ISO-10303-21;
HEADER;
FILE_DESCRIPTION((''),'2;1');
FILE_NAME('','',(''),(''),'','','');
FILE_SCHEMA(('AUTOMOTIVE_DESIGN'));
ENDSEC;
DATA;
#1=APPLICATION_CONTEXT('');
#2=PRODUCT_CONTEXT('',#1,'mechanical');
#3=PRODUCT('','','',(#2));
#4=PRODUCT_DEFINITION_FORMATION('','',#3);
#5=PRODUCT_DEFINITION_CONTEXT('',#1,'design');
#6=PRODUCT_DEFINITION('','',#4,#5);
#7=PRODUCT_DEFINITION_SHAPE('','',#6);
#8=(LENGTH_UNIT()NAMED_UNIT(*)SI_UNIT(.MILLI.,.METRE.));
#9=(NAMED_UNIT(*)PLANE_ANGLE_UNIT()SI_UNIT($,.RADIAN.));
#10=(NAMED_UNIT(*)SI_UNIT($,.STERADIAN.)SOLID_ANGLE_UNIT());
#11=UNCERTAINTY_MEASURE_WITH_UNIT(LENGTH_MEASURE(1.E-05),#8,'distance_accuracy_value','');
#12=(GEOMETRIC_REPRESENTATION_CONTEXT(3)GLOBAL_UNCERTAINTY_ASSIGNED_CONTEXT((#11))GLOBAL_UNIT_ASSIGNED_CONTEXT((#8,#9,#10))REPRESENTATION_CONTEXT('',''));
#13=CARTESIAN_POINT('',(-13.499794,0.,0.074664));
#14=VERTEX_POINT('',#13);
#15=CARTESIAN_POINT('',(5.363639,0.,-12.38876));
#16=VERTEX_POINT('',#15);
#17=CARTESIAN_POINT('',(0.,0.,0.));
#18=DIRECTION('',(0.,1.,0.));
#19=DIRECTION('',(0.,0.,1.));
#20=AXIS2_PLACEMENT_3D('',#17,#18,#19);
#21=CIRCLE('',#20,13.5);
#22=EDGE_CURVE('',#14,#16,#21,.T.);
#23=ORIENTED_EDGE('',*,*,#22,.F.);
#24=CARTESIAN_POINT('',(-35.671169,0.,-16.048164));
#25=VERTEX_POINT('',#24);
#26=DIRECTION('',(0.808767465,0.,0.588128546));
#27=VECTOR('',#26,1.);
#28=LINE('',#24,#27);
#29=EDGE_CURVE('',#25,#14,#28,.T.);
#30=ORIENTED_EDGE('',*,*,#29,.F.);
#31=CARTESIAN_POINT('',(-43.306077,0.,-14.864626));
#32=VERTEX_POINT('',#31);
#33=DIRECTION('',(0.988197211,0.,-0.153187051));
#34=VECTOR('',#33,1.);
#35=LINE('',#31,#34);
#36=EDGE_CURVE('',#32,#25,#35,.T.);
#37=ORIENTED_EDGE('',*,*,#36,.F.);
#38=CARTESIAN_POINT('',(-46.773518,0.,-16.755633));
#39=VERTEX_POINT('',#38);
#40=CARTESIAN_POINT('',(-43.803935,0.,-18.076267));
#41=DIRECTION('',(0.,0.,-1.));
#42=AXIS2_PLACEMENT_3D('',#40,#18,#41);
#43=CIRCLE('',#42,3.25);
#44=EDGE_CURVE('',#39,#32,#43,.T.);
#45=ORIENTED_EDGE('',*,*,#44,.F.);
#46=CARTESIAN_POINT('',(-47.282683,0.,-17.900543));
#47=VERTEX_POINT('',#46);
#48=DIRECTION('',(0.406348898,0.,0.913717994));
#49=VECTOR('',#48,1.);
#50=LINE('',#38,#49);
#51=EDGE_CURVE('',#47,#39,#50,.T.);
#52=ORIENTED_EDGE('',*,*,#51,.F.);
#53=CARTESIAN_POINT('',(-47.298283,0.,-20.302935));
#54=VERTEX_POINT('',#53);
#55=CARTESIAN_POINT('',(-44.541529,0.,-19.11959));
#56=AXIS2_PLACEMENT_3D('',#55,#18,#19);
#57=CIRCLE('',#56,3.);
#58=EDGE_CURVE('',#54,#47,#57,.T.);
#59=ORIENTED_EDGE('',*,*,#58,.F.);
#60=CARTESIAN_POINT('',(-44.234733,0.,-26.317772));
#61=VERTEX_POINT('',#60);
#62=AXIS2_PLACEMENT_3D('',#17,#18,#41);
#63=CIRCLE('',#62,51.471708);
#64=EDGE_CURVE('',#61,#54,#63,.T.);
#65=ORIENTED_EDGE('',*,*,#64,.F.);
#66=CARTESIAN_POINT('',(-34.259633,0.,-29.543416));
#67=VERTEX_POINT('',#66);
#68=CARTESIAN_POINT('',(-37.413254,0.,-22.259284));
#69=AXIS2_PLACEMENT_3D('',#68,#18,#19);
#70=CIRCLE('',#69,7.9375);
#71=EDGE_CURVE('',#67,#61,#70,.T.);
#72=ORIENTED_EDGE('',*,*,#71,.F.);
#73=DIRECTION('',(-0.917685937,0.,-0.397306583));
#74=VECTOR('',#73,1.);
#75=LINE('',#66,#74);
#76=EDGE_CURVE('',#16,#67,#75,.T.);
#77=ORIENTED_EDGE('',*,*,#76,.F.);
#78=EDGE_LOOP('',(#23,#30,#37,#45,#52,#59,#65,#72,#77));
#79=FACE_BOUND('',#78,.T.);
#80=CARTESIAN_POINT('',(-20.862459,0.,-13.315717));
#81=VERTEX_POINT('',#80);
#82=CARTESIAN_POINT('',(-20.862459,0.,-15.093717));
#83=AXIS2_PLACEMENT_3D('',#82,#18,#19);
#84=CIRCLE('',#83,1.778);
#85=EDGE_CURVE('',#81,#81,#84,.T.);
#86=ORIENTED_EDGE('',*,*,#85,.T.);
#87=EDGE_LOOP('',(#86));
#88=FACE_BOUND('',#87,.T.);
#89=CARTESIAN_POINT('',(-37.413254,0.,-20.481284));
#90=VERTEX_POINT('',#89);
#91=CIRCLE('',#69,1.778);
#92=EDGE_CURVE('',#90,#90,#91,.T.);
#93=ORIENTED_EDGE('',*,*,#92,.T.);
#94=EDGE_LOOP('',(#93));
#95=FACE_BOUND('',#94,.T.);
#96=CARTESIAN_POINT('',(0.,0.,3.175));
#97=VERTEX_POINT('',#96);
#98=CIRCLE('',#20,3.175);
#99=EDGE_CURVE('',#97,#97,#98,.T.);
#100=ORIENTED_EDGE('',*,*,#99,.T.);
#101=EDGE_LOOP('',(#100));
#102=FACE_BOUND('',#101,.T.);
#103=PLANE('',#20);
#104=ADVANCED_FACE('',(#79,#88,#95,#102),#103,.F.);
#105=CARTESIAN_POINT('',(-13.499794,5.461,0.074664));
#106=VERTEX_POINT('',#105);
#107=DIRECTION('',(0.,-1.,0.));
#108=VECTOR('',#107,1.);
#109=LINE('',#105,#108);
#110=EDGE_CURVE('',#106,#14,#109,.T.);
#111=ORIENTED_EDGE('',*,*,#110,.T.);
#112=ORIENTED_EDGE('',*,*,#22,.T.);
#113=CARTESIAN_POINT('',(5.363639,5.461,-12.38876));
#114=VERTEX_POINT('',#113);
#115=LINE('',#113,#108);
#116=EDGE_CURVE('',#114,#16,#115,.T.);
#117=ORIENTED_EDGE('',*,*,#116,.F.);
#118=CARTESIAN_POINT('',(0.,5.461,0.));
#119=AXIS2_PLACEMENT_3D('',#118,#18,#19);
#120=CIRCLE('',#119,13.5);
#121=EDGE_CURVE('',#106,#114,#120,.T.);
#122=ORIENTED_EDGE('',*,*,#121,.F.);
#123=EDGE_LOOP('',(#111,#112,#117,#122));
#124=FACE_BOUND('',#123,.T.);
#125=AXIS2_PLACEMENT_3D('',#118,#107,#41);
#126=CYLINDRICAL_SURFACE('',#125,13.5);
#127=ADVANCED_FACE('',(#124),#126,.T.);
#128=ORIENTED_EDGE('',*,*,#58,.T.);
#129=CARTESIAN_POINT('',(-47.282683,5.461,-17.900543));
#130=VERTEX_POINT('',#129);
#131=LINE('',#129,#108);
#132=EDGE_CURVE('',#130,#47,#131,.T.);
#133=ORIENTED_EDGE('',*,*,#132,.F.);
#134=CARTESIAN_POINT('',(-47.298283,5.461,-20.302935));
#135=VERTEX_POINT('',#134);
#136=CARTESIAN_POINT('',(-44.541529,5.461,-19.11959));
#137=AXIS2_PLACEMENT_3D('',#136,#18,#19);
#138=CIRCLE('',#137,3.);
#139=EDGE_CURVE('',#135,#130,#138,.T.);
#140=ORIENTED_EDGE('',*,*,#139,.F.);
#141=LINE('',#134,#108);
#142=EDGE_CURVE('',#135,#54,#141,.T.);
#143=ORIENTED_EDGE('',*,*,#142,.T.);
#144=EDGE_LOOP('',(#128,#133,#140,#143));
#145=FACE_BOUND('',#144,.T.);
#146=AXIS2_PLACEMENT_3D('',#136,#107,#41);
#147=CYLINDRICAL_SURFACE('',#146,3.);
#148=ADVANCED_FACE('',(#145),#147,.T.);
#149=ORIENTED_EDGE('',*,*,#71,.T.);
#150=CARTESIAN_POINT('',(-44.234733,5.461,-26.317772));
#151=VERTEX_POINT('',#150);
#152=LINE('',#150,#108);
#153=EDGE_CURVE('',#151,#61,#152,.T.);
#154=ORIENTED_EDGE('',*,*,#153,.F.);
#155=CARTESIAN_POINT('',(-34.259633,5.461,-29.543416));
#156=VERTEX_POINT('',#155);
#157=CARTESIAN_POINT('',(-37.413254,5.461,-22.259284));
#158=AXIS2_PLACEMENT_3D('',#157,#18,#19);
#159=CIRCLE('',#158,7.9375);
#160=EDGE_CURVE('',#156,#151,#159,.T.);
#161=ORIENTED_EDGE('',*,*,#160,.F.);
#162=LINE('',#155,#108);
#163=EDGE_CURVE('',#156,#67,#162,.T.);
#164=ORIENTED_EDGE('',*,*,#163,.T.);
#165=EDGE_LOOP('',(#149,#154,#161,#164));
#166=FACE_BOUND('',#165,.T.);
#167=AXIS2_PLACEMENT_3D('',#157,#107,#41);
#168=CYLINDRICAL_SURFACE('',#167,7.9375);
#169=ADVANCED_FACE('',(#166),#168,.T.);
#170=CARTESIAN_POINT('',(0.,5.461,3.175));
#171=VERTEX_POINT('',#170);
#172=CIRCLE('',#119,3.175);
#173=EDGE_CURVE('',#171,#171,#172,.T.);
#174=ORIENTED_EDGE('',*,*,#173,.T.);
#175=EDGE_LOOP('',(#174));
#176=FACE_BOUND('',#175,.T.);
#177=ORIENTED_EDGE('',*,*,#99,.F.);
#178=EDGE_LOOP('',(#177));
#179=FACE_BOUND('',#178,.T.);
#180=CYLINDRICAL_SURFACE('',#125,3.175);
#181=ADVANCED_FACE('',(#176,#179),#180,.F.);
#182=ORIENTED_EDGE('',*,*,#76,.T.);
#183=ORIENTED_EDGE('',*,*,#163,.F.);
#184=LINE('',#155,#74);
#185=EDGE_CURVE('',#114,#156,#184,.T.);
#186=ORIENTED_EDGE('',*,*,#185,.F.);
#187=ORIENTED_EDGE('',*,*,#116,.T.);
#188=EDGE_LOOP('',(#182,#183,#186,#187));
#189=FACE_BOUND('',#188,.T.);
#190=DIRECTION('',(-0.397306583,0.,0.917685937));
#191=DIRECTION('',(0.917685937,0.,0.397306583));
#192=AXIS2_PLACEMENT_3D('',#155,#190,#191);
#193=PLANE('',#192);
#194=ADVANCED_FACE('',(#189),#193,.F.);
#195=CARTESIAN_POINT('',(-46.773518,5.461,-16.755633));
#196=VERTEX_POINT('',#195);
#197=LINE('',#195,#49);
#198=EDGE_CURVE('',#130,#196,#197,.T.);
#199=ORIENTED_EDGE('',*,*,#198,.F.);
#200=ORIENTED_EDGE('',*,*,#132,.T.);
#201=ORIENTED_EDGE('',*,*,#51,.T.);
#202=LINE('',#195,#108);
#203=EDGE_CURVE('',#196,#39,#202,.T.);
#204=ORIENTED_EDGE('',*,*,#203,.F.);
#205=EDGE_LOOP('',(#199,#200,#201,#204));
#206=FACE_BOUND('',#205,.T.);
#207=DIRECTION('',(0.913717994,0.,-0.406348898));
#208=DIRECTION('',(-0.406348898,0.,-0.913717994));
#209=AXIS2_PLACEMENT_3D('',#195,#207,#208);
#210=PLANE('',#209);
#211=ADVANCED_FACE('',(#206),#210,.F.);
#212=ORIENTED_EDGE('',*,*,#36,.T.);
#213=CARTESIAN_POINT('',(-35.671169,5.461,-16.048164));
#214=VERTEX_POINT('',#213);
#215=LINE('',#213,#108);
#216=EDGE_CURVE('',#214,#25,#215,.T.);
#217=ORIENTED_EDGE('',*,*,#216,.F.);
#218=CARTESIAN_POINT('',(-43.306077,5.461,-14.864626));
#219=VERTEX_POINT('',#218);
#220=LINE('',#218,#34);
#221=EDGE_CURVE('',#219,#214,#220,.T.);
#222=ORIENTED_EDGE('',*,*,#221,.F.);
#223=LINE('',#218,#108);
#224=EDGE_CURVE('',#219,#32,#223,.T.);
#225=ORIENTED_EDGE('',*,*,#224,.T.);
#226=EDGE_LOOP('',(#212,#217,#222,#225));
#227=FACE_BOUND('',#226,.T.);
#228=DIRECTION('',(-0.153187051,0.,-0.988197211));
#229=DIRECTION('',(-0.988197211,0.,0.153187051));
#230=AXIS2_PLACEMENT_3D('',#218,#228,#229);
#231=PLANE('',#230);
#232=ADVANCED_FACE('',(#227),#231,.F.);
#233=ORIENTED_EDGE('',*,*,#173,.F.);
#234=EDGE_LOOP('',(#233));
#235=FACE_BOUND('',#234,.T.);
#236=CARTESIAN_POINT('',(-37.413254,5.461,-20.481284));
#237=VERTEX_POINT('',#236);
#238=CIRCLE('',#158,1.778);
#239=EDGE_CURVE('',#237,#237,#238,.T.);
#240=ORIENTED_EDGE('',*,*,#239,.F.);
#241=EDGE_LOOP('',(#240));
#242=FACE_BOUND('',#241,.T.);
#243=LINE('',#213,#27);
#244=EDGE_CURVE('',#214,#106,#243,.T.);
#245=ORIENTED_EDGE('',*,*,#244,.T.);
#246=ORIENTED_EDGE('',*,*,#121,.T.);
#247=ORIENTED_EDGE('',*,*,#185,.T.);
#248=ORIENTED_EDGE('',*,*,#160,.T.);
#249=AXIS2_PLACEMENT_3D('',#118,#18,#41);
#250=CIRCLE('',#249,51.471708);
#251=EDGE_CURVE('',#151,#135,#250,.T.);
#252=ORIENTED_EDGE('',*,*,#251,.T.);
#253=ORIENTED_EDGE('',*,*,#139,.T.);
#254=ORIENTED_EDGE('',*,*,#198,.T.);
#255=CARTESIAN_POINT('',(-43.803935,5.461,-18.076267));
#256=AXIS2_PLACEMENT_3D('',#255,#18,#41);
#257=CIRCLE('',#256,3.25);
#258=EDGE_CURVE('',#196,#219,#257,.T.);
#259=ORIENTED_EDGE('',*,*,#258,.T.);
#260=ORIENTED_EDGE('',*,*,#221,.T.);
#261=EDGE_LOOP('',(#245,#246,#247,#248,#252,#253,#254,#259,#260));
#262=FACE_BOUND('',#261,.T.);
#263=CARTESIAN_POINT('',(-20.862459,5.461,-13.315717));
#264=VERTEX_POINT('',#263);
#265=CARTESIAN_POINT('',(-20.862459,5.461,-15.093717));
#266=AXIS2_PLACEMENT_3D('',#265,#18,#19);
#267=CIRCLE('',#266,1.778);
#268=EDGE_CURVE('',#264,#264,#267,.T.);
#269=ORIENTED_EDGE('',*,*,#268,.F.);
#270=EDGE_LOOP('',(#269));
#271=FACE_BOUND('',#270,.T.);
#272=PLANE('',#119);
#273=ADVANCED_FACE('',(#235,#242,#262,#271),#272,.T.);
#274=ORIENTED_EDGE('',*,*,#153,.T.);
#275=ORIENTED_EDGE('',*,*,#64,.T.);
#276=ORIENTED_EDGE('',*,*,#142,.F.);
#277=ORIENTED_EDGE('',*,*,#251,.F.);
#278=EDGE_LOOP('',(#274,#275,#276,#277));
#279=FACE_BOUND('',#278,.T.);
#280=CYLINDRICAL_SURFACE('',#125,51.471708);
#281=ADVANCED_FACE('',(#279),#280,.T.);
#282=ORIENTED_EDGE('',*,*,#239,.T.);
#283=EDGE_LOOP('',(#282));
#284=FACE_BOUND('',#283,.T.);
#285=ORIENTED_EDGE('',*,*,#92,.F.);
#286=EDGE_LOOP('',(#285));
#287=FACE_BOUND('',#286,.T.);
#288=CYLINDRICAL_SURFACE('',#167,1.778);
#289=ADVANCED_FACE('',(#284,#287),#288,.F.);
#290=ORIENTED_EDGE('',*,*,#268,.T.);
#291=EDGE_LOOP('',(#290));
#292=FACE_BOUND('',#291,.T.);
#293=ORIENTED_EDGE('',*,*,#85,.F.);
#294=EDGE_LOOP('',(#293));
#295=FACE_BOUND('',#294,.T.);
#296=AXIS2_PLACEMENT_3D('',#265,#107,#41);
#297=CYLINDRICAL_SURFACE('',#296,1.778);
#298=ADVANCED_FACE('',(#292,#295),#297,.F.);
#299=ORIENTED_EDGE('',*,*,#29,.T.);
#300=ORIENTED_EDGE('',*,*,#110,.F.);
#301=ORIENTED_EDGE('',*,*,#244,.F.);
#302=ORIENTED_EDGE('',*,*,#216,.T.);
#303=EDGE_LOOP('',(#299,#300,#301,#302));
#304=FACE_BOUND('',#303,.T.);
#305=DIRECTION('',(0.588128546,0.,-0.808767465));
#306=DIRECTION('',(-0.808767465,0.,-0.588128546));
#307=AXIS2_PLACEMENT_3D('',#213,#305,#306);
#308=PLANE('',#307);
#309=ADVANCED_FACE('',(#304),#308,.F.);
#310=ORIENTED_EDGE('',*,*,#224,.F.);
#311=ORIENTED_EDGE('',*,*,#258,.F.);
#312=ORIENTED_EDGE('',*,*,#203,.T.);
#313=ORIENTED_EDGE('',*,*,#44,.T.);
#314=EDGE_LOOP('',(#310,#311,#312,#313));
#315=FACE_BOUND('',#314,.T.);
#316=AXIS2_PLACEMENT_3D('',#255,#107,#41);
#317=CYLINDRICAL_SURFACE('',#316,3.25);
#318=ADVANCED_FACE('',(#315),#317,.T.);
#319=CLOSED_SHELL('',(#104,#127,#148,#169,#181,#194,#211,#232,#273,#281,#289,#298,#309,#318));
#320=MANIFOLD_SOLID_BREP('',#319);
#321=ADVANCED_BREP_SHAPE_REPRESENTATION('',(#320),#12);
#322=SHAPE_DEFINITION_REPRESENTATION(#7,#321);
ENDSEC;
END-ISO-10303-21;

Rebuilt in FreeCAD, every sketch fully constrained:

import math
import FreeCAD as App
import Part
import Sketcher

V = App.Vector
Q = App.Units.Quantity

doc = App.newDocument("Part")
params = doc.addObject("Spreadsheet::Sheet", "Params")
for row, (alias, value) in enumerate([
    ("sketch1_diameter", "0.25 in"),
    ("sketch1_diameter2", "0.14 in"),
    ("sketch1_radius", "0.3125 in"),
    ("pad1_length", "0.215 in"),
], start=1):
    params.set(f"A{row}", alias)
    params.set(f"B{row}", "=" + value)
    params.setAlias(f"B{row}", alias)

body = doc.addObject("PartDesign::Body", "Body")

# Sketch on XZ plane
sketch1 = body.newObject("Sketcher::SketchObject", "Sketch")
sketch1.AttachmentSupport = (doc.getObject("XZ_Plane"), [""])
sketch1.MapMode = "FlatFace"
sketch1.addGeometry(Part.LineSegment(V(-35.7, -16, 0), V(-13.5, 0.1, 0)), False)
sketch1.addGeometry(Part.ArcOfCircle(Part.Circle(V(0, 0, 0), V(0, 0, 1), 13.5), math.radians(-67), math.radians(180)), False)
sketch1.addGeometry(Part.LineSegment(V(5.4, -12.4, 0), V(-34.3, -29.5, 0)), False)
sketch1.addGeometry(Part.ArcOfCircle(Part.Circle(V(-37.4, -22.3, 0), V(0, 0, 1), 7.9), math.radians(-149), math.radians(-67)), False)
sketch1.addGeometry(Part.ArcOfCircle(Part.Circle(V(0, 0, 0), V(0, 0, 1), 51.5), math.radians(-156.77), math.radians(-149.25)), False)
sketch1.addGeometry(Part.ArcOfCircle(Part.Circle(V(-44.5, -19.1, 0), V(0, 0, 1), 3), math.radians(156), math.radians(203)), False)
sketch1.addGeometry(Part.LineSegment(V(-47.3, -17.9, 0), V(-46.8, -16.8, 0)), False)
sketch1.addGeometry(Part.ArcOfCircle(Part.Circle(V(-43.8, -18.1, 0), V(0, 0, 1), 3.2), math.radians(81), math.radians(156)), False)
sketch1.addGeometry(Part.LineSegment(V(-43.3, -14.9, 0), V(-35.7, -16, 0)), False)
sketch1.addGeometry(Part.Circle(V(0, 0, 0), V(0, 0, 1), 3.2), False)
sketch1.addGeometry(Part.Circle(V(-20.9, -15.1, 0), V(0, 0, 1), 1.8), False)
sketch1.addGeometry(Part.Circle(V(-37.4, -22.3, 0), V(0, 0, 1), 1.8), False)
sketch1.addConstraint(Sketcher.Constraint("Coincident", 0, 2, 1, 2))
sketch1.addConstraint(Sketcher.Constraint("Tangent", 1, 1, 2, 1))
sketch1.addConstraint(Sketcher.Constraint("Tangent", 2, 2, 3, 2))
sketch1.addConstraint(Sketcher.Constraint("Tangent", 3, 1, 4, 2))
sketch1.addConstraint(Sketcher.Constraint("Tangent", 4, 1, 5, 2))
sketch1.addConstraint(Sketcher.Constraint("Tangent", 5, 1, 6, 1))
sketch1.addConstraint(Sketcher.Constraint("Tangent", 6, 2, 7, 2))
sketch1.addConstraint(Sketcher.Constraint("Tangent", 7, 1, 8, 1))
sketch1.addConstraint(Sketcher.Constraint("Coincident", 8, 2, 0, 1))
sketch1.addConstraint(Sketcher.Constraint("Coincident", 1, 3, -1, 1))
sketch1.addConstraint(Sketcher.Constraint("Coincident", 4, 3, -1, 1))
sketch1.addConstraint(Sketcher.Constraint("Coincident", 9, 3, -1, 1))
sketch1.addConstraint(Sketcher.Constraint("Coincident", 11, 3, 3, 3))
sketch1.addConstraint(Sketcher.Constraint("Equal", 10, 11))
sketch1.addConstraint(Sketcher.Constraint("Diameter", 9, Q("0.25 in")))
sketch1.addConstraint(Sketcher.Constraint("Diameter", 10, Q("0.14 in")))
sketch1.addConstraint(Sketcher.Constraint("Radius", 3, Q("0.3125 in")))
sketch1.addConstraint(Sketcher.Constraint("Radius", 1, 13.5))
sketch1.addConstraint(Sketcher.Constraint("Radius", 5, 3.0))
sketch1.addConstraint(Sketcher.Constraint("Radius", 7, 3.25))
sketch1.addConstraint(Sketcher.Constraint("Radius", 4, 51.471709))
sketch1.addConstraint(Sketcher.Constraint("DistanceY", 2, 2, 10, 3, 14.449699))
sketch1.addConstraint(Sketcher.Constraint("DistanceX", 3, 1, 7, 3, 0.430798))
sketch1.addConstraint(Sketcher.Constraint("DistanceX", 3, 1, 2, 2, 9.9751))
sketch1.addConstraint(Sketcher.Constraint("DistanceX", 4, 1, 5, 1, 0.0156))
sketch1.addConstraint(Sketcher.Constraint("DistanceY", 4, 1, 6, 2, 3.547302))
sketch1.addConstraint(Sketcher.Constraint("DistanceX", 10, 3, -1, 1, 20.862459))
sketch1.addConstraint(Sketcher.Constraint("DistanceX", 8, 2, -1, 1, 35.671169))
sketch1.addConstraint(Sketcher.Constraint("DistanceY", 10, 3, 0, 2, 15.168382))
sketch1.addConstraint(Sketcher.Constraint("DistanceY", 7, 3, 7, 1, 3.211641))
sketch1.setExpression("Constraints[14]", "Params.sketch1_diameter")
sketch1.setExpression("Constraints[15]", "Params.sketch1_diameter2")
sketch1.setExpression("Constraints[16]", "Params.sketch1_radius")
pad1 = body.newObject("PartDesign::Pad", "Pad")
pad1.Profile = sketch1
pad1.setExpression("Length", "Params.pad1_length")
pad1.Reversed = True

doc.recompute()
